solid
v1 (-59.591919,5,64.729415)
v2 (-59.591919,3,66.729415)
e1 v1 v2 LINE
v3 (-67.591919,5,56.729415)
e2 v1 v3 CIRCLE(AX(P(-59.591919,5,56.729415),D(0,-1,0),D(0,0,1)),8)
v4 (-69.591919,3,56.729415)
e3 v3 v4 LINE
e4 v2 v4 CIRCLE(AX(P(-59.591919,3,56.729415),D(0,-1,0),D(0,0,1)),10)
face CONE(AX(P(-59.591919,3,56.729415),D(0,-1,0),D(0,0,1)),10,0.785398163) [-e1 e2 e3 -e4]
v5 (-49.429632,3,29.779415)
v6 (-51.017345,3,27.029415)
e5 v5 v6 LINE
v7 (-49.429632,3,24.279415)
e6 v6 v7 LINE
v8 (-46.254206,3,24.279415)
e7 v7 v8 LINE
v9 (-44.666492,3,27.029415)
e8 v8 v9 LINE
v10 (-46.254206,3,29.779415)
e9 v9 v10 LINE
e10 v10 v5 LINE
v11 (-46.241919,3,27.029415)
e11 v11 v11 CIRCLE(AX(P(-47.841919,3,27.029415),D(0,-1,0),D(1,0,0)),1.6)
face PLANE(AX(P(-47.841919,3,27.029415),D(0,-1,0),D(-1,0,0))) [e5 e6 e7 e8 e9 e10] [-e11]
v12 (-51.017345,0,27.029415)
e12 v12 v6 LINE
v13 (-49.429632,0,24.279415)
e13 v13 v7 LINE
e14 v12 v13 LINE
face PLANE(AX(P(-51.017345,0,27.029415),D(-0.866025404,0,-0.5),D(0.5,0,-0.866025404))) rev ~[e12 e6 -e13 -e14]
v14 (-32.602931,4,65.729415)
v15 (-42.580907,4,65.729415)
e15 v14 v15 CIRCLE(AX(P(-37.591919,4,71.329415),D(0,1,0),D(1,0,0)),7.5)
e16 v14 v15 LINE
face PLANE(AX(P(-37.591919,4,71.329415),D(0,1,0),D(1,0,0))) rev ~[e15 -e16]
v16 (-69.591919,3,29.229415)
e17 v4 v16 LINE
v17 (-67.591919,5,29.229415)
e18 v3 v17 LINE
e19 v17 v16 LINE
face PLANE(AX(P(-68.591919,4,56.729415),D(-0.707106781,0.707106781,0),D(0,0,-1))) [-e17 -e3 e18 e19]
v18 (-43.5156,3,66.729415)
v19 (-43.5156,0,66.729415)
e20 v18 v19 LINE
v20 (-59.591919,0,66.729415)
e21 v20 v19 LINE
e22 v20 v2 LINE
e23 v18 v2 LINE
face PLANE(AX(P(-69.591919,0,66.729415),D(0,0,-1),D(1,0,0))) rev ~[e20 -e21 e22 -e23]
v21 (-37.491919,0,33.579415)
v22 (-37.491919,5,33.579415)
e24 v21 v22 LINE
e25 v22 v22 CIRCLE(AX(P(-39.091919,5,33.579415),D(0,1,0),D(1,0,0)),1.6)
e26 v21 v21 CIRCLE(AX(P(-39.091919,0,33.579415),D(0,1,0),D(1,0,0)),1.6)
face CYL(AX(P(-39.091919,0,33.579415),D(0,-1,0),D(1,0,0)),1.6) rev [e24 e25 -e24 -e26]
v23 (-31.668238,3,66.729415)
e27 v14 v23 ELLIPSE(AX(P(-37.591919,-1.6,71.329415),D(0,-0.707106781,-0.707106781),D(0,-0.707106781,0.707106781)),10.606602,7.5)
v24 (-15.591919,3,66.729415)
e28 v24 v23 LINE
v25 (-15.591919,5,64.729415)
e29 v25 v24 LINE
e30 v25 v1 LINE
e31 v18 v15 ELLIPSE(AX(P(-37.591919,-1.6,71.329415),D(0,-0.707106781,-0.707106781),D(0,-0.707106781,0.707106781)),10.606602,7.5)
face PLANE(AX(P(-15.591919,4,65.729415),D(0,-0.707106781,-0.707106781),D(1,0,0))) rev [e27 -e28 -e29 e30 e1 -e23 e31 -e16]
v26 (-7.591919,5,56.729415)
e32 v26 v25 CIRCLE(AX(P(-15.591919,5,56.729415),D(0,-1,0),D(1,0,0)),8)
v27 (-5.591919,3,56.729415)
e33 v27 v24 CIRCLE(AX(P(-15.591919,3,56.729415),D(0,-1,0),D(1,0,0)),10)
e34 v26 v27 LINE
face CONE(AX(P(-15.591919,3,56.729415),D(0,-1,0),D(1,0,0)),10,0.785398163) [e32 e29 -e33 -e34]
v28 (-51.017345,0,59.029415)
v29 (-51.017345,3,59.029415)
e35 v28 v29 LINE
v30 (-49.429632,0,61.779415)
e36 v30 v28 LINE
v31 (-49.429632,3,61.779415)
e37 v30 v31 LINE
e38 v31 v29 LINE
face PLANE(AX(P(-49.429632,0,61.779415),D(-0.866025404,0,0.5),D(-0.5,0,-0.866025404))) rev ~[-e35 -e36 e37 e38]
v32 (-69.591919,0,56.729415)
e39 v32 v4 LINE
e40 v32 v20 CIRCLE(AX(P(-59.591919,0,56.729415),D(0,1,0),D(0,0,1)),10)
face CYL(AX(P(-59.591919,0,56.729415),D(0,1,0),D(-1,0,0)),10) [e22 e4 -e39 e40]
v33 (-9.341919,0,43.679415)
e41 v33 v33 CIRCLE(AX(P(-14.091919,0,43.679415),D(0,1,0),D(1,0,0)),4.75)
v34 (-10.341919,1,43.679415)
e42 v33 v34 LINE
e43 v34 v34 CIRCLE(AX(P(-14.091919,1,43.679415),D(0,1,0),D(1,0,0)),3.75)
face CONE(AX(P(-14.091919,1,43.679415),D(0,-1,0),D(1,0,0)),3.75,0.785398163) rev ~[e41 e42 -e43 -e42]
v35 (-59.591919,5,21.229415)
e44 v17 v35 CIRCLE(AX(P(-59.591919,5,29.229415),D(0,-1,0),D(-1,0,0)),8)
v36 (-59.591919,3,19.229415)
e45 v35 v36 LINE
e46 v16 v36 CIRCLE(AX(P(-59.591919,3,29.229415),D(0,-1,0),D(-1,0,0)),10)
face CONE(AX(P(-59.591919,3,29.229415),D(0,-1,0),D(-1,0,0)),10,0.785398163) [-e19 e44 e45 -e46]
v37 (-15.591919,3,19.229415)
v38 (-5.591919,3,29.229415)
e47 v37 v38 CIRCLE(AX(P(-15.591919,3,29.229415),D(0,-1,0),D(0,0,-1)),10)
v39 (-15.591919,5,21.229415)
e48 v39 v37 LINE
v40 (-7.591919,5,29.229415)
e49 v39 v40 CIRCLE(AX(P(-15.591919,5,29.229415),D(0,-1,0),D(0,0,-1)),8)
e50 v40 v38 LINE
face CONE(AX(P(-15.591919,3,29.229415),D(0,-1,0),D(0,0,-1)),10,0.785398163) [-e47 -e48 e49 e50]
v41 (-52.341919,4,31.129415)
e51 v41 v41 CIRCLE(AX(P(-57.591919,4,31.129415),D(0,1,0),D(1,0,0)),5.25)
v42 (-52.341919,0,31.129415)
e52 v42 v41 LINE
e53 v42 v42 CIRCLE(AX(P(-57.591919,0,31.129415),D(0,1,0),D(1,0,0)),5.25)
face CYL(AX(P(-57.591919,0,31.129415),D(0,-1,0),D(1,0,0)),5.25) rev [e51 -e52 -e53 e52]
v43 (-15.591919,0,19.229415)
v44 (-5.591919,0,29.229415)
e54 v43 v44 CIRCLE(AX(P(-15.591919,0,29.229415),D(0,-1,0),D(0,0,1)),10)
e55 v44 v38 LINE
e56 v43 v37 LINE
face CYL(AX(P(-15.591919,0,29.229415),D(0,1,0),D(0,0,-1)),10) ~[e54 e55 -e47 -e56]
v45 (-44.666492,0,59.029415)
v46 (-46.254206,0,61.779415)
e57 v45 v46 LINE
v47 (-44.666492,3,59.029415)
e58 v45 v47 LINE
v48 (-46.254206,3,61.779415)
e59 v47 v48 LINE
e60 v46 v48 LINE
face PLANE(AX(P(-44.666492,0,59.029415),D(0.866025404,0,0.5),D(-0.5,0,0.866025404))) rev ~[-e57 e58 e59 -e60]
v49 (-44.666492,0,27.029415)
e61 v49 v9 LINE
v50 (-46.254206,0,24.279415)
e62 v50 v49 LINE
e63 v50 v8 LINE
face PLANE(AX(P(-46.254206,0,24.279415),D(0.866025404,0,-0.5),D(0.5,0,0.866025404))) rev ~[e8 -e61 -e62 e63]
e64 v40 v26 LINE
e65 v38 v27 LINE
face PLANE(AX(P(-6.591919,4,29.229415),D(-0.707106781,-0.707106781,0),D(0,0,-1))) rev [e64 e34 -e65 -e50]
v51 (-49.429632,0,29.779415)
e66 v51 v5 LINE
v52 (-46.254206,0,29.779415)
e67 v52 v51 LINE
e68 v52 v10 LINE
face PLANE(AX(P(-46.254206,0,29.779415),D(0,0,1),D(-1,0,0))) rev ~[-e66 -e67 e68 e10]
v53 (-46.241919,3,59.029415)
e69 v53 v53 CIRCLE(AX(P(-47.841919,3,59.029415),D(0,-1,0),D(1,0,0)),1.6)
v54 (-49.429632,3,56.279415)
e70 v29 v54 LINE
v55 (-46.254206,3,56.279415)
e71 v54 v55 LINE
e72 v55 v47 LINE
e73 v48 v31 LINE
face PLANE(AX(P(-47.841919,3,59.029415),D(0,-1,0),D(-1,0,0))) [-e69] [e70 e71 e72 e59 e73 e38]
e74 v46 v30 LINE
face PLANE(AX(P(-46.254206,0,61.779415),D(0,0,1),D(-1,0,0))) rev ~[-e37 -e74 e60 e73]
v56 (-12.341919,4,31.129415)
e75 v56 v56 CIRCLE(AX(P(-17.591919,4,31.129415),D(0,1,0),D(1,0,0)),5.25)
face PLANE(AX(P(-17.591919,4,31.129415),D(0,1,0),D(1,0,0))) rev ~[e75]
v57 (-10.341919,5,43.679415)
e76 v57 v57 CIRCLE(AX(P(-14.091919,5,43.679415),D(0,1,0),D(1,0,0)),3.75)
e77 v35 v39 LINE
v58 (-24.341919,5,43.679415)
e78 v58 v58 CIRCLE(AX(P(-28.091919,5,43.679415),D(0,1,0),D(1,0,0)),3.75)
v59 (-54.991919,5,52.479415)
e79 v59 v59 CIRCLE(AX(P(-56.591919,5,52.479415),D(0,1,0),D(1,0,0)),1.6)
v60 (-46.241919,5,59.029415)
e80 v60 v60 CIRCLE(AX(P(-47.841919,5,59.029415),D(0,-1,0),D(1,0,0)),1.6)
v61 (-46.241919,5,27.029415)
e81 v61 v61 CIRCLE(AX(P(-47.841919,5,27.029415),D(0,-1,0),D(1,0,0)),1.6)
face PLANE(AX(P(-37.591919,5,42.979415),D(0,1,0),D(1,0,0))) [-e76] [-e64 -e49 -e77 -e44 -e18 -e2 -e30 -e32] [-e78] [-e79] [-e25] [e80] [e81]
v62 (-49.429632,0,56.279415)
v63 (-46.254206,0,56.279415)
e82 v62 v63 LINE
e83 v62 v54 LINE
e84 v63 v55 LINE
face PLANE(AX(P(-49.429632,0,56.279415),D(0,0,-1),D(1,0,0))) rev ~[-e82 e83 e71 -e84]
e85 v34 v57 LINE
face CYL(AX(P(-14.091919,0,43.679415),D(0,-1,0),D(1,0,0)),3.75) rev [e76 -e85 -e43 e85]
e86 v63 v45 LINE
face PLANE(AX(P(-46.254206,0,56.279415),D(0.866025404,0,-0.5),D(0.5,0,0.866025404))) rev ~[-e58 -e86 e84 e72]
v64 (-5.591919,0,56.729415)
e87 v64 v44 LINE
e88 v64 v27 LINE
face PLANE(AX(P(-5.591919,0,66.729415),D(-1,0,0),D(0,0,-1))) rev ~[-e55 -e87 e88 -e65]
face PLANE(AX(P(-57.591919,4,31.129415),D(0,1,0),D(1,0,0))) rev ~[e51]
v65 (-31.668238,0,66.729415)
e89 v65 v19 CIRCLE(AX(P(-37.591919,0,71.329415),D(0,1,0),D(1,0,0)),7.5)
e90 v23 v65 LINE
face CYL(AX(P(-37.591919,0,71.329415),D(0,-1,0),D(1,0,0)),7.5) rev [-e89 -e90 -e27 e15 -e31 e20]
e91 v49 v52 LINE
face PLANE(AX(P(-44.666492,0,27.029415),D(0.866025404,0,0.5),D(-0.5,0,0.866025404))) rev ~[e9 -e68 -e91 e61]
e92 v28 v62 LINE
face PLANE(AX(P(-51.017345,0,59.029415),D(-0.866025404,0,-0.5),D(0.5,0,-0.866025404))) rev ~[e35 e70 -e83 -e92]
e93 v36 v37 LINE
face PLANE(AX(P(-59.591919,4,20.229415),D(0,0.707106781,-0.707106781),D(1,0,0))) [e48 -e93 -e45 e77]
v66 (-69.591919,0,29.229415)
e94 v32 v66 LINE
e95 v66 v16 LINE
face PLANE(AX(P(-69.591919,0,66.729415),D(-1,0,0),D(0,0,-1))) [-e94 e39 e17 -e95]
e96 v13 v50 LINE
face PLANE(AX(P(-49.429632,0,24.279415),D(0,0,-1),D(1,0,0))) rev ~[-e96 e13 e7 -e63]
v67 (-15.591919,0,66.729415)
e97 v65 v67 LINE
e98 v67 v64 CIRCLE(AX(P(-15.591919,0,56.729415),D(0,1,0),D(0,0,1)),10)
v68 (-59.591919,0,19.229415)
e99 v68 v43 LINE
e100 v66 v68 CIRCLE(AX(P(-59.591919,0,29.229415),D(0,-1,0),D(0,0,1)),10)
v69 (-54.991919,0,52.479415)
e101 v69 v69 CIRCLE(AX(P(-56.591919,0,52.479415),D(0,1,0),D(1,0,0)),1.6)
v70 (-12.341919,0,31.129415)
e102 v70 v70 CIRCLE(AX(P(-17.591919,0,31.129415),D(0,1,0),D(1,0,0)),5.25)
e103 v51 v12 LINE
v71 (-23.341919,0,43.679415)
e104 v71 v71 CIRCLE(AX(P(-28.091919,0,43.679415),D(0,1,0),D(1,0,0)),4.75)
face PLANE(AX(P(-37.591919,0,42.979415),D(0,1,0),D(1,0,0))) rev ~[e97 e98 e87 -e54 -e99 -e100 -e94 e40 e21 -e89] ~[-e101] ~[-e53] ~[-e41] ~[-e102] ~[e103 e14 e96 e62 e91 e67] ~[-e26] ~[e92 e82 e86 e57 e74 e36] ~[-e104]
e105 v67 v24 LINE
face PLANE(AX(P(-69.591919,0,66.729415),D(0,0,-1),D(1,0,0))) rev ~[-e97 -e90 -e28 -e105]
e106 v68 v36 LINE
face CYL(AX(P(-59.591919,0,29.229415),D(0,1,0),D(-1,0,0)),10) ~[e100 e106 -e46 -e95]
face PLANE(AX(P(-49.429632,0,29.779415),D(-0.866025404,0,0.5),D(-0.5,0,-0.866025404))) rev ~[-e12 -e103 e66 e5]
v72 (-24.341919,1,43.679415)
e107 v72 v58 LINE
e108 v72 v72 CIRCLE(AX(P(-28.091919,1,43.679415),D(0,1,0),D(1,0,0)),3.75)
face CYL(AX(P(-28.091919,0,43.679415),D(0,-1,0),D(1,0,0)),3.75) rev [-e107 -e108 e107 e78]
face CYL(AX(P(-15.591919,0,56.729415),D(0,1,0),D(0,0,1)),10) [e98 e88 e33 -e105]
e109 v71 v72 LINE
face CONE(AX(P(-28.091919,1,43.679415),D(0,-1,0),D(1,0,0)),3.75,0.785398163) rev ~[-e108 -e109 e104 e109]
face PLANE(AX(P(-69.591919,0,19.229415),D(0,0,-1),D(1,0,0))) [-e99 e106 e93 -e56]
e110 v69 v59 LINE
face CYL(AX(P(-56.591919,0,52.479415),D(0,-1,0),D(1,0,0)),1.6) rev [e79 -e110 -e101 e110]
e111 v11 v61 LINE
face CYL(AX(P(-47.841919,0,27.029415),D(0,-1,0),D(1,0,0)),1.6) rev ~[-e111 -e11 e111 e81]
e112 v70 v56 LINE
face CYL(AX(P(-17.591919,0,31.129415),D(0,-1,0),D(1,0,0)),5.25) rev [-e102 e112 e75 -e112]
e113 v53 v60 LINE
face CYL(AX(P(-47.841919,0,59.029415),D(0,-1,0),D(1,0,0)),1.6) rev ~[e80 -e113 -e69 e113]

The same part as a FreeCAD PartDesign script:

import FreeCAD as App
import Part
import Sketcher

V = App.Vector
Q = App.Units.Quantity


def edges_at(feature, points):
    """Names of the edges that pass closest to the given points."""
    edges = feature.Shape.Edges
    near = lambda p: min(range(len(edges)), key=lambda i: edges[i].distToShape(Part.Vertex(*p))[0])
    return sorted({f"Edge{near(p) + 1}" for p in points})

doc = App.newDocument("Part")
body = doc.addObject("PartDesign::Body", "Body")

sketch1 = body.newObject("Sketcher::SketchObject", "Sketch")
sketch1.AttachmentSupport = (doc.getObject("XZ_Plane"), [""])
sketch1.MapMode = "FlatFace"
sketch1.addGeometry(Part.LineSegment(V(-69.6, 19.2, 0), V(-69.6, 66.7, 0)), False)
sketch1.addGeometry(Part.LineSegment(V(-69.6, 66.7, 0), V(-5.6, 66.7, 0)), False)
sketch1.addGeometry(Part.LineSegment(V(-5.6, 66.7, 0), V(-5.6, 19.2, 0)), False)
sketch1.addGeometry(Part.LineSegment(V(-5.6, 19.2, 0), V(-69.6, 19.2, 0)), False)
sketch1.addGeometry(Part.Circle(V(-56.6, 52.5, 0), V(0, 0, 1), 1.6), False)
sketch1.addGeometry(Part.Circle(V(-28.1, 43.7, 0), V(0, 0, 1), 3.8), False)
sketch1.addGeometry(Part.Circle(V(-14.1, 43.7, 0), V(0, 0, 1), 3.8), False)
sketch1.addGeometry(Part.Circle(V(-39.1, 33.6, 0), V(0, 0, 1), 1.6), False)
sketch1.addConstraint(Sketcher.Constraint("Coincident", 0, 2, 1, 1))
sketch1.addConstraint(Sketcher.Constraint("Coincident", 1, 2, 2, 1))
sketch1.addConstraint(Sketcher.Constraint("Coincident", 2, 2, 3, 1))
sketch1.addConstraint(Sketcher.Constraint("Coincident", 3, 2, 0, 1))
sketch1.addConstraint(Sketcher.Constraint("Vertical", 0))
sketch1.addConstraint(Sketcher.Constraint("Horizontal", 1))
sketch1.addConstraint(Sketcher.Constraint("Vertical", 2))
sketch1.addConstraint(Sketcher.Constraint("Horizontal", 3))
sketch1.addConstraint(Sketcher.Constraint("Equal", 5, 6))
sketch1.addConstraint(Sketcher.Constraint("Equal", 4, 7))
sketch1.addConstraint(Sketcher.Constraint("Horizontal", 5, 3, 6, 3))
sketch1.addConstraint(Sketcher.Constraint("Diameter", 4, Q("3.2 mm")))
sketch1.addConstraint(Sketcher.Constraint("Diameter", 5, Q("7.5 mm")))
sketch1.addConstraint(Sketcher.Constraint("DistanceX", 1, 1, 1, 2, Q("64 mm")))
sketch1.addConstraint(Sketcher.Constraint("DistanceY", 0, 1, 0, 2, Q("47.5 mm")))
sketch1.addConstraint(Sketcher.Constraint("DistanceX", 5, 3, 6, 3, Q("14 mm")))
sketch1.addConstraint(Sketcher.Constraint("DistanceX", 7, 3, 5, 3, Q("11 mm")))
sketch1.addConstraint(Sketcher.Constraint("DistanceX", 0, 2, 4, 3, Q("13 mm")))
sketch1.addConstraint(Sketcher.Constraint("DistanceX", 4, 3, 5, 3, Q("28.5 mm")))
sketch1.addConstraint(Sketcher.Constraint("DistanceY", 5, 3, 4, 3, Q("8.8 mm")))
sketch1.addConstraint(Sketcher.Constraint("DistanceY", 7, 3, 5, 3, Q("10.1 mm")))
sketch1.addConstraint(Sketcher.Constraint("DistanceY", 4, 3, 0, 2, Q("14.25 mm")))
sketch1.addConstraint(Sketcher.Constraint("DistanceX", 4, 3, -1, 1, Q("56.591919 mm")))
sketch1.addConstraint(Sketcher.Constraint("DistanceY", -1, 1, 4, 3, Q("52.479415 mm")))
pad1 = body.newObject("PartDesign::Pad", "Pad")
pad1.Profile = sketch1
pad1.Length = 5
pad1.Reversed = True

sketch2 = body.newObject("Sketcher::SketchObject", "Sketch001")
sketch2.AttachmentSupport = (doc.getObject("XZ_Plane"), [""])
sketch2.MapMode = "FlatFace"
sketch2.addGeometry(Part.Circle(V(-47.8, 59, 0), V(0, 0, 1), 1.6), False)
sketch2.addGeometry(Part.Circle(V(-47.8, 27, 0), V(0, 0, 1), 1.6), False)
sketch2.addConstraint(Sketcher.Constraint("Equal", 0, 1))
sketch2.addConstraint(Sketcher.Constraint("Vertical", 0, 3, 1, 3))
sketch2.addConstraint(Sketcher.Constraint("Diameter", 0, Q("3.2 mm")))
sketch2.addConstraint(Sketcher.Constraint("DistanceY", 1, 3, 0, 3, Q("32 mm")))
sketch2.addConstraint(Sketcher.Constraint("DistanceX", 0, 3, -1, 1, Q("47.841919 mm")))
sketch2.addConstraint(Sketcher.Constraint("DistanceY", -1, 1, 0, 3, Q("59.029415 mm")))
pocket1 = body.newObject("PartDesign::Pocket", "Pocket")
pocket1.Profile = sketch2
pocket1.Type = "ThroughAll"

sketch3 = body.newObject("Sketcher::SketchObject", "Sketch002")
sketch3.AttachmentSupport = (doc.getObject("XZ_Plane"), [""])
sketch3.MapMode = "FlatFace"
sketch3.addGeometry(Part.LineSegment(V(-49.4, 56.3, 0), V(-46.3, 56.3, 0)), False)
sketch3.addGeometry(Part.LineSegment(V(-46.3, 56.3, 0), V(-44.7, 59, 0)), False)
sketch3.addGeometry(Part.LineSegment(V(-44.7, 59, 0), V(-46.3, 61.8, 0)), False)
sketch3.addGeometry(Part.LineSegment(V(-46.3, 61.8, 0), V(-49.4, 61.8, 0)), False)
sketch3.addGeometry(Part.LineSegment(V(-49.4, 61.8, 0), V(-51, 59, 0)), False)
sketch3.addGeometry(Part.LineSegment(V(-51, 59, 0), V(-49.4, 56.3, 0)), False)
sketch3.addGeometry(Part.LineSegment(V(-46.3, 29.8, 0), V(-49.4, 29.8, 0)), False)
sketch3.addGeometry(Part.LineSegment(V(-49.4, 29.8, 0), V(-51, 27, 0)), False)
sketch3.addGeometry(Part.LineSegment(V(-51, 27, 0), V(-49.4, 24.3, 0)), False)
sketch3.addGeometry(Part.LineSegment(V(-49.4, 24.3, 0), V(-46.3, 24.3, 0)), False)
sketch3.addGeometry(Part.LineSegment(V(-46.3, 24.3, 0), V(-44.7, 27, 0)), False)
sketch3.addGeometry(Part.LineSegment(V(-44.7, 27, 0), V(-46.3, 29.8, 0)), False)
sketch3.addConstraint(Sketcher.Constraint("Coincident", 0, 2, 1, 1))
sketch3.addConstraint(Sketcher.Constraint("Coincident", 1, 2, 2, 1))
sketch3.addConstraint(Sketcher.Constraint("Coincident", 2, 2, 3, 1))
sketch3.addConstraint(Sketcher.Constraint("Coincident", 3, 2, 4, 1))
sketch3.addConstraint(Sketcher.Constraint("Coincident", 4, 2, 5, 1))
sketch3.addConstraint(Sketcher.Constraint("Coincident", 5, 2, 0, 1))
sketch3.addConstraint(Sketcher.Constraint("Coincident", 6, 2, 7, 1))
sketch3.addConstraint(Sketcher.Constraint("Coincident", 7, 2, 8, 1))
sketch3.addConstraint(Sketcher.Constraint("Coincident", 8, 2, 9, 1))
sketch3.addConstraint(Sketcher.Constraint("Coincident", 9, 2, 10, 1))
sketch3.addConstraint(Sketcher.Constraint("Coincident", 10, 2, 11, 1))
sketch3.addConstraint(Sketcher.Constraint("Coincident", 11, 2, 6, 1))
sketch3.addConstraint(Sketcher.Constraint("Horizontal", 0))
sketch3.addConstraint(Sketcher.Constraint("Horizontal", 3))
sketch3.addConstraint(Sketcher.Constraint("Horizontal", 6))
sketch3.addConstraint(Sketcher.Constraint("Horizontal", 9))
sketch3.addConstraint(Sketcher.Constraint("Parallel", 1, 4))
sketch3.addConstraint(Sketcher.Constraint("Parallel", 2, 5))
sketch3.addConstraint(Sketcher.Constraint("Parallel", 4, 7))
sketch3.addConstraint(Sketcher.Constraint("Parallel", 5, 8))
sketch3.addConstraint(Sketcher.Constraint("Parallel", 7, 10))
sketch3.addConstraint(Sketcher.Constraint("Parallel", 8, 11))
sketch3.addConstraint(Sketcher.Constraint("Horizontal", 1, 2, 4, 2))
sketch3.addConstraint(Sketcher.Constraint("Horizontal", 7, 2, 10, 2))
sketch3.addConstraint(Sketcher.Constraint("Vertical", 0, 2, 2, 2))
sketch3.addConstraint(Sketcher.Constraint("Vertical", 3, 2, 5, 2))
sketch3.addConstraint(Sketcher.Constraint("Vertical", 5, 2, 6, 2))
sketch3.addConstraint(Sketcher.Constraint("Vertical", 4, 2, 7, 2))
sketch3.addConstraint(Sketcher.Constraint("Vertical", 6, 2, 8, 2))
sketch3.addConstraint(Sketcher.Constraint("Vertical", 2, 2, 9, 2))
sketch3.addConstraint(Sketcher.Constraint("Angle", 1, Q("60 deg")))
sketch3.addConstraint(Sketcher.Constraint("DistanceY", 6, 2, 3, 2, Q("32 mm")))
sketch3.addConstraint(Sketcher.Constraint("DistanceY", 0, 2, 2, 2, Q("5.5 mm")))
sketch3.addConstraint(Sketcher.Constraint("DistanceX", 0, 1, 0, 2, Q("3.175426 mm")))
sketch3.addConstraint(Sketcher.Constraint("DistanceX", 0, 2, -1, 1, Q("46.254206 mm")))
sketch3.addConstraint(Sketcher.Constraint("DistanceY", -1, 1, 0, 2, Q("56.279415 mm")))
pocket2 = body.newObject("PartDesign::Pocket", "Pocket001")
pocket2.Profile = sketch3
pocket2.Length = 3
doc.recompute()

fillet = body.newObject("PartDesign::Fillet", "Fillet")
fillet.Base = (pocket2, edges_at(pocket2, [(-69.592, 2.5, 19.229), (-5.592, 2.5, 19.229)]))
fillet.Radius = 10
doc.recompute()

fillet2 = body.newObject("PartDesign::Fillet", "Fillet001")
fillet2.Base = (fillet, edges_at(fillet, [(-5.592, 2.5, 66.729), (-69.592, 2.5, 66.729)]))
fillet2.Radius = 10
doc.recompute()

chamfer = body.newObject("PartDesign::Chamfer", "Chamfer")
chamfer.Base = (fillet2, edges_at(fillet2, [
    (-37.592, 5, 19.229),
    (-69.592, 5, 42.979),
    (-66.663, 5, 22.158),
    (-8.521, 5, 22.158),
    (-5.592, 5, 42.979),
    (-37.592, 5, 66.729),
    (-66.663, 5, 63.8),
    (-8.521, 5, 63.8),
]))
chamfer.Size = 2
doc.recompute()

chamfer2 = body.newObject("PartDesign::Chamfer", "Chamfer001")
chamfer2.Base = (chamfer, edges_at(chamfer, [(-17.842, 0, 43.679), (-31.842, 0, 43.679)]))
chamfer2.Size = 1

sketch4 = body.newObject("Sketcher::SketchObject", "Sketch003")
sketch4.AttachmentSupport = (doc.getObject("XZ_Plane"), [""])
sketch4.MapMode = "FlatFace"
sketch4.addGeometry(Part.Circle(V(-58, 31, 0), V(0, 0, 1), 5), False)
sketch4.addGeometry(Part.Circle(V(-18, 31, 0), V(0, 0, 1), 5), False)
sketch4.addGeometry(Part.Circle(V(-38, 71, 0), V(0, 0, 1), 8), False)
sketch4.addConstraint(Sketcher.Constraint("Equal", 0, 1))
sketch4.addConstraint(Sketcher.Constraint("Horizontal", 0, 3, 1, 3))
sketch4.addConstraint(Sketcher.Constraint("Diameter", 2, Q("15 mm")))
sketch4.addConstraint(Sketcher.Constraint("Diameter", 0, Q("10.5 mm")))
sketch4.addConstraint(Sketcher.Constraint("DistanceX", 0, 3, 1, 3, Q("40 mm")))
sketch4.addConstraint(Sketcher.Constraint("DistanceX", 0, 3, 2, 3, Q("20 mm")))
sketch4.addConstraint(Sketcher.Constraint("DistanceY", 0, 3, 2, 3, Q("40.2 mm")))
sketch4.addConstraint(Sketcher.Constraint("DistanceX", 0, 3, -1, 1, Q("57.591919 mm")))
sketch4.addConstraint(Sketcher.Constraint("DistanceY", -1, 1, 0, 3, Q("31.129415 mm")))
pocket3 = body.newObject("PartDesign::Pocket", "Pocket002")
pocket3.Profile = sketch4
pocket3.Length = 4

doc.recompute()
